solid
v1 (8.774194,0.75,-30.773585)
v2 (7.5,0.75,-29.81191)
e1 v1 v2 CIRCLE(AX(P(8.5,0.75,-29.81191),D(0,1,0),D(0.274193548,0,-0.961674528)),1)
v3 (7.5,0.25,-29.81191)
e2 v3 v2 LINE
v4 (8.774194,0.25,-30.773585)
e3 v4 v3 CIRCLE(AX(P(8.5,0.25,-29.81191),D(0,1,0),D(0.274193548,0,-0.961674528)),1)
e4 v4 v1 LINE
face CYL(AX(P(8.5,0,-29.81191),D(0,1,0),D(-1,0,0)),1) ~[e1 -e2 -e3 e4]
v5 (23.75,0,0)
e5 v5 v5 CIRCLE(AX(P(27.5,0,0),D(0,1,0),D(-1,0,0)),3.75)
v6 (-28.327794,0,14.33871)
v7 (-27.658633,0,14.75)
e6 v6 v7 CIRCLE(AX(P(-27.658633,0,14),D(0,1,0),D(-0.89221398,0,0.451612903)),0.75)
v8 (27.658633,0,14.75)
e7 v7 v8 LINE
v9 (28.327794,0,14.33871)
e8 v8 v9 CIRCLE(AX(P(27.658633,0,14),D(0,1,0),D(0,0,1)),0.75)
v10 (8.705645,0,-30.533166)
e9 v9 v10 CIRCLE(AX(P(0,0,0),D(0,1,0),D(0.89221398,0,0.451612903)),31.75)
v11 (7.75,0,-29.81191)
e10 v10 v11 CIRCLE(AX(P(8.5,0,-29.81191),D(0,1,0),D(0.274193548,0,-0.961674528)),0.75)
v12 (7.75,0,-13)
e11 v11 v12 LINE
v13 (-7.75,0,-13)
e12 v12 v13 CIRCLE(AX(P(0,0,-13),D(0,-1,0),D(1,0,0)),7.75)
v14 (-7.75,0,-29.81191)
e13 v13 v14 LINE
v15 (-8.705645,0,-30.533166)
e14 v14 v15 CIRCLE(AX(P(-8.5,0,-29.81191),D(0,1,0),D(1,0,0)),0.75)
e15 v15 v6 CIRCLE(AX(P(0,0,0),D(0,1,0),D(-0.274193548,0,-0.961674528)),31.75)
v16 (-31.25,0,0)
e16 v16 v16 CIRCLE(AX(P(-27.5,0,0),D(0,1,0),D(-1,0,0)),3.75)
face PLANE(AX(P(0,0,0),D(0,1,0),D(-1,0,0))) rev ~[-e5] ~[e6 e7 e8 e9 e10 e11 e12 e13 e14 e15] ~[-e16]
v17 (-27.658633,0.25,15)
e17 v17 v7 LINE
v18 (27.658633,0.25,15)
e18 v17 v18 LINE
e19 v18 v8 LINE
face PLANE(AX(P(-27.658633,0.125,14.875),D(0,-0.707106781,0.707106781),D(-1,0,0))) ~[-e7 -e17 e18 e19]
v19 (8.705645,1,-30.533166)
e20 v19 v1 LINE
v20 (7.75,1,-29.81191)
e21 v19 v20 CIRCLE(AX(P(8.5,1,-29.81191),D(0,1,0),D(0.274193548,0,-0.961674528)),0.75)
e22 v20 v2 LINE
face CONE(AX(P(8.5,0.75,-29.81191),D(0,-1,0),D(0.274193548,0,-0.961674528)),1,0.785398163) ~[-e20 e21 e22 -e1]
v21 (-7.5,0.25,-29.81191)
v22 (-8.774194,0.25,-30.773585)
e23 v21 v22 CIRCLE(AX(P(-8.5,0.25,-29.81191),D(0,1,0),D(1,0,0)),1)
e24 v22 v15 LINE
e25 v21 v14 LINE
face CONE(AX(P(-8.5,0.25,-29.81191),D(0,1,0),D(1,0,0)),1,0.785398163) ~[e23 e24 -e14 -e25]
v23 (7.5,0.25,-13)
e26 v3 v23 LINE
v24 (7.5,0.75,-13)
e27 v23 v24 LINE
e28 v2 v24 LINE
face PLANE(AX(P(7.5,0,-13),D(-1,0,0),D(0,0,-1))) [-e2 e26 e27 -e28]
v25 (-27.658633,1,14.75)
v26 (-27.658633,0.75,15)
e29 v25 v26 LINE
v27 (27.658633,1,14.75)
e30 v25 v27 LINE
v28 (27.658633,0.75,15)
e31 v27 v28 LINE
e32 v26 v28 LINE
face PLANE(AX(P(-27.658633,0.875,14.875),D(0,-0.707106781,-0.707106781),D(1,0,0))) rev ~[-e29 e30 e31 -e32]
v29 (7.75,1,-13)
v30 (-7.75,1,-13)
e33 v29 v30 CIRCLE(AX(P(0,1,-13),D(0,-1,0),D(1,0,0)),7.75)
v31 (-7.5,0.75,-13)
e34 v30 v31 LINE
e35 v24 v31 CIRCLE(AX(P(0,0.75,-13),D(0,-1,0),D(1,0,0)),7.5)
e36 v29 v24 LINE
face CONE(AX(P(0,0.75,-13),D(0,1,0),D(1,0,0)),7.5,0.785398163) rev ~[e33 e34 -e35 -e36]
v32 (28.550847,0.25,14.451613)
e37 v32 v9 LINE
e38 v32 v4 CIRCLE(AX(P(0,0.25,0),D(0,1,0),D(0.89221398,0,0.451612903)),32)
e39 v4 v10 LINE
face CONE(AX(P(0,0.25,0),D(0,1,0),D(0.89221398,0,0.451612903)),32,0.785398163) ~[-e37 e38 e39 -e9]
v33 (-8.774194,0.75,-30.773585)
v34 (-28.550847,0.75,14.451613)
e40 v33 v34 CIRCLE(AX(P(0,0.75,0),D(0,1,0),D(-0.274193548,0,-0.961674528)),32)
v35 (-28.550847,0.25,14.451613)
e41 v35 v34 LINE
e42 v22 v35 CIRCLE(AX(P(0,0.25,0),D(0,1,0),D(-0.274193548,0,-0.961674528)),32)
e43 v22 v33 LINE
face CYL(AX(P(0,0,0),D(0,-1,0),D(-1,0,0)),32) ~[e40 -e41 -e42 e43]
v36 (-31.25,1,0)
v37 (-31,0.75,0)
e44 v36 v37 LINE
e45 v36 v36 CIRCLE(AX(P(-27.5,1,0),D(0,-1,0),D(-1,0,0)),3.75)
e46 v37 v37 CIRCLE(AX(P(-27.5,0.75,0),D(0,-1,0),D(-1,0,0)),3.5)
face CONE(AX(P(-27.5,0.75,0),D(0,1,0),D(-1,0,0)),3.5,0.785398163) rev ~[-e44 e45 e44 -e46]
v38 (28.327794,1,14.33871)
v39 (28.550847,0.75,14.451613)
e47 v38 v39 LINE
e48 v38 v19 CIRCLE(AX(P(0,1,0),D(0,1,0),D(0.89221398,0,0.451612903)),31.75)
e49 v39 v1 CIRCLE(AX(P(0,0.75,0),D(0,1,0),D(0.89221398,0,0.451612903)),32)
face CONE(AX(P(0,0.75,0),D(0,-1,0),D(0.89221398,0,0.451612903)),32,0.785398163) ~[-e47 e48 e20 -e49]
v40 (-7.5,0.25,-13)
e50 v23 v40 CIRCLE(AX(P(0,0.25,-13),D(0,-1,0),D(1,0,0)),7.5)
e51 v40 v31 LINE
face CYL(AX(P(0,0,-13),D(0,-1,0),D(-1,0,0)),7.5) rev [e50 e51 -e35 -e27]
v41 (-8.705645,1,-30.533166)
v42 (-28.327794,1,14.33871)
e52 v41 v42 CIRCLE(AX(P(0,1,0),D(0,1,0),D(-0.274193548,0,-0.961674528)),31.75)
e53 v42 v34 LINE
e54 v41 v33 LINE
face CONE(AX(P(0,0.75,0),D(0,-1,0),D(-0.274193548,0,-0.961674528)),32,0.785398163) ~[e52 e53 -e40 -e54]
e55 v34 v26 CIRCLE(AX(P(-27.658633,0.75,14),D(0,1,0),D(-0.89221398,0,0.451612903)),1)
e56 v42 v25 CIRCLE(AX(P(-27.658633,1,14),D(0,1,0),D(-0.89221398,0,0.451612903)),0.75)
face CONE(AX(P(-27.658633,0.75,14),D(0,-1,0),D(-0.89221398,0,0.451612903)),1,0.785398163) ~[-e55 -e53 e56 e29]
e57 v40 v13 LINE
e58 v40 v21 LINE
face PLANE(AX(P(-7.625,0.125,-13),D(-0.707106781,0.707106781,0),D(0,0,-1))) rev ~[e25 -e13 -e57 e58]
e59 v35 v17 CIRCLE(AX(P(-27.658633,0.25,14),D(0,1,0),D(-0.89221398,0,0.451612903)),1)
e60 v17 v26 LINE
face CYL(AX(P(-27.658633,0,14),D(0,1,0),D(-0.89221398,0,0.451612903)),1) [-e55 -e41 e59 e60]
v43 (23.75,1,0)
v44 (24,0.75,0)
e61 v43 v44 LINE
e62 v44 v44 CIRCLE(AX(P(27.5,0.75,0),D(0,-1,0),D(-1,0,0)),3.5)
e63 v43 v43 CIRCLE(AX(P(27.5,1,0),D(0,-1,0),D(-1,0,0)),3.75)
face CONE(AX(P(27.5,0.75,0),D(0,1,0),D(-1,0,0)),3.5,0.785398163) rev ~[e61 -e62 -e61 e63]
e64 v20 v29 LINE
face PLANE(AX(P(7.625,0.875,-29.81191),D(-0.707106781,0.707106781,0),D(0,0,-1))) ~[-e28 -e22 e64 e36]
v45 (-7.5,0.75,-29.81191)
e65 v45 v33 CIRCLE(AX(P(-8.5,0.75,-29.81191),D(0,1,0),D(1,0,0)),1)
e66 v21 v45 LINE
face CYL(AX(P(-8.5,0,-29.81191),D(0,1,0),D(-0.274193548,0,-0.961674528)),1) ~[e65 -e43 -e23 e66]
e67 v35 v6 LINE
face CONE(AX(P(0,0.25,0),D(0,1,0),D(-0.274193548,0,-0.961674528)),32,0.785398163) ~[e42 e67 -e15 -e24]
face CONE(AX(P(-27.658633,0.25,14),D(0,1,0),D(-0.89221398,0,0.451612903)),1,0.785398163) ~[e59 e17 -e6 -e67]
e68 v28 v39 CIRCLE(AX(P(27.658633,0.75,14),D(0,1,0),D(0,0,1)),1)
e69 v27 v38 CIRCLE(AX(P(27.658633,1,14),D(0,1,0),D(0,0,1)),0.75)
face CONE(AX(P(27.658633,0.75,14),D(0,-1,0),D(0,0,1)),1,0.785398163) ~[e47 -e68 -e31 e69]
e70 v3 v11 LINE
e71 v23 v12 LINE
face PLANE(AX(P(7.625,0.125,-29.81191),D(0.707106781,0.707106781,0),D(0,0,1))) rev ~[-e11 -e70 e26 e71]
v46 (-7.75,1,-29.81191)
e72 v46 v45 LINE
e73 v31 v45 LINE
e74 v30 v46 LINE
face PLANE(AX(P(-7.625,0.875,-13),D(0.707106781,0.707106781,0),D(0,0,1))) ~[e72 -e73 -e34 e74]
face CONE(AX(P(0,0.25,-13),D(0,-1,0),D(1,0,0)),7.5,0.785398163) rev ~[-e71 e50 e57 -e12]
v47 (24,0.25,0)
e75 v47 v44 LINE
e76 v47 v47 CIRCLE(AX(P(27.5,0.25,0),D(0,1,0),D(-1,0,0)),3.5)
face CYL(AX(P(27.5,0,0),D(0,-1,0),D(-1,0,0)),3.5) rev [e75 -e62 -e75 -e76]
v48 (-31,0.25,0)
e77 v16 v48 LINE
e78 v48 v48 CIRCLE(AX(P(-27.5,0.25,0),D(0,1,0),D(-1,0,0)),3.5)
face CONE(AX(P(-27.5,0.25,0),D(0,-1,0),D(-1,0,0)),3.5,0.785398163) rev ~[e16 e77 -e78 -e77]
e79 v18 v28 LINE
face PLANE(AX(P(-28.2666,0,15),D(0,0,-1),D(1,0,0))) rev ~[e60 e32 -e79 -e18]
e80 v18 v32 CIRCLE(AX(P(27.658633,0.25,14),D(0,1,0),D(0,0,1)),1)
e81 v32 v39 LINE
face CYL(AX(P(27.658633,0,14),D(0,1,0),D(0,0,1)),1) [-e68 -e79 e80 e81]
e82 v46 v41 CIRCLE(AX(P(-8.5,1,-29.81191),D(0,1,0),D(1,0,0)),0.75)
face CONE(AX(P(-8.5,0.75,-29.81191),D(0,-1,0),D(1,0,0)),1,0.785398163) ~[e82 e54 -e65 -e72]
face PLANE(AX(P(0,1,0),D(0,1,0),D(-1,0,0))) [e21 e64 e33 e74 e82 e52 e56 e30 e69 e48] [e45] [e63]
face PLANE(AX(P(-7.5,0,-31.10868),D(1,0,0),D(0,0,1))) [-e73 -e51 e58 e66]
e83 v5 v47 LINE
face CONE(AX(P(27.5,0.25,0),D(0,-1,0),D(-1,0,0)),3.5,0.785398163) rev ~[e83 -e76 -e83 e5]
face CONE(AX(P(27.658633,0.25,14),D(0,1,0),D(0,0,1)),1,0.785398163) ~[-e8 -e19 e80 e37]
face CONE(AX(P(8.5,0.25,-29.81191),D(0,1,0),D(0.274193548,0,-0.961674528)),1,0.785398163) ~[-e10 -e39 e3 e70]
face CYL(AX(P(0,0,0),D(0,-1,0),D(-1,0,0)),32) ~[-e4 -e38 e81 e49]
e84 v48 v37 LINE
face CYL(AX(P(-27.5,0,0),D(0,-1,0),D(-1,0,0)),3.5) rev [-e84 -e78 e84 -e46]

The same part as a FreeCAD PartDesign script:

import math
import FreeCAD as App
import Part
import Sketcher
Q = App.Units.Quantity


def edges_at(feature, points):
    """Names of the edges that pass closest to the given points."""
    edges = feature.Shape.Edges
    near = lambda p: min(range(len(edges)), key=lambda i: edges[i].distToShape(Part.Vertex(*p))[0])
    return sorted({f"Edge{near(p) + 1}" for p in points})

doc = App.newDocument("Part")
params = doc.addObject("Spreadsheet::Sheet", "Params")
for row, (alias, value) in enumerate([
    ("sketch1_diameter", "7 mm"),
    ("sketch1_radius", "32 mm"),
    ("sketch1_radius2", "7.5 mm"),
    ("pad1_length", "1 mm"),
    ("fillet_radius", "1 mm"),
    ("chamfer_size", "0.25 mm"),
], start=1):
    params.set(f"A{row}", alias)
    params.set(f"B{row}", "=" + value)
    params.setAlias(f"B{row}", alias)

body = doc.addObject("PartDesign::Body", "Body")

sketch1 = body.newObject("Sketcher::SketchObject", "Sketch")
sketch1.AttachmentSupport = (doc.getObject("XZ_Plane"), [""])
sketch1.MapMode = "FlatFace"
sketch1.addGeometry([
    Part.LineSegment(App.Vector(-28.2666, 15, 0), App.Vector(28.2666, 15, 0)),
    Part.ArcOfCircle(Part.Circle(App.Vector(0, 0, 0), App.Vector(0, 0, 1), 32), math.radians(-76.445216), math.radians(27.953177)),
    Part.LineSegment(App.Vector(7.5, -31.10868, 0), App.Vector(7.5, -13, 0)),
    Part.ArcOfCircle(Part.Circle(App.Vector(0, -13, 0), App.Vector(0, 0, 1), 7.5), math.radians(0), math.radians(180)),
    Part.LineSegment(App.Vector(-7.5, -13, 0), App.Vector(-7.5, -31.10868, 0)),
    Part.ArcOfCircle(Part.Circle(App.Vector(0, 0, 0), App.Vector(0, 0, 1), 32), math.radians(152.046823), math.radians(256.445216)),
    Part.Circle(App.Vector(-27.5, 0, 0), App.Vector(0, 0, 1), 3.5),
    Part.Circle(App.Vector(27.5, 0, 0), App.Vector(0, 0, 1), 3.5),
], False)
sketch1.addConstraint([
    Sketcher.Constraint("Coincident", 0, 2, 1, 2),
    Sketcher.Constraint("Coincident", 1, 1, 2, 1),
    Sketcher.Constraint("Tangent", 2, 2, 3, 1),
    Sketcher.Constraint("Tangent", 3, 2, 4, 1),
    Sketcher.Constraint("Coincident", 4, 2, 5, 2),
    Sketcher.Constraint("Coincident", 5, 1, 0, 1),
    Sketcher.Constraint("Horizontal", 0),
    Sketcher.Constraint("Vertical", 2),
    Sketcher.Constraint("Vertical", 4),
    Sketcher.Constraint("Coincident", 1, 3, -1, 1),
    Sketcher.Constraint("Coincident", 5, 3, -1, 1),
    Sketcher.Constraint("Equal", 1, 5),
    Sketcher.Constraint("Equal", 6, 7),
    Sketcher.Constraint("Symmetric", 6, 3, 7, 3, -1, 1),
    Sketcher.Constraint("PointOnObject", 3, 3, -2),
    Sketcher.Constraint("PointOnObject", 6, 3, -1),
    Sketcher.Constraint("Diameter", 6, Q("7 mm")),
    Sketcher.Constraint("Radius", 1, Q("32 mm")),
    Sketcher.Constraint("Radius", 3, Q("7.5 mm")),
    Sketcher.Constraint("DistanceY", -1, 1, 0, 2, Q("15 mm")),
    Sketcher.Constraint("DistanceX", 6, 3, 7, 3, Q("55 mm")),
    Sketcher.Constraint("DistanceY", 3, 3, -1, 1, Q("13 mm")),
])
sketch1.setExpression("Constraints[16]", "Params.sketch1_diameter")
sketch1.setExpression("Constraints[17]", "Params.sketch1_radius")
sketch1.setExpression("Constraints[18]", "Params.sketch1_radius2")
pad1 = body.newObject("PartDesign::Pad", "Pad")
pad1.Profile = sketch1
pad1.setExpression("Length", "Params.pad1_length")
pad1.Reversed = True
doc.recompute()

fillet = body.newObject("PartDesign::Fillet", "Fillet")
fillet.Base = (pad1, edges_at(pad1, [
    (-7.5, 0.5, -31.109),
    (7.5, 0.5, -31.109),
    (-28.267, 0.5, 15),
    (28.267, 0.5, 15),
]))
fillet.setExpression("Radius", "Params.fillet_radius")
doc.recompute()

chamfer = body.newObject("PartDesign::Chamfer", "Chamfer")
chamfer.Base = (fillet, edges_at(fillet, [
    (-24, 0, 0),
    (-24, 1, 0),
    (29.319, 1, -12.821),
    (7.898, 1, -30.61),
    (7.5, 1, -21.406),
    (0, 1, -5.5),
    (-7.5, 1, -21.406),
    (-7.898, 1, -30.61),
    (-29.319, 1, -12.821),
    (-29.319, 0, -12.821),
    (-7.898, 0, -30.61),
    (-7.5, 0, -21.406),
    (0, 0, -5.5),
    (7.5, 0, -21.406),
    (7.898, 0, -30.61),
    (29.319, 0, -12.821),
    (31, 0, 0),
    (31, 1, 0),
    (0, 0, 15),
    (0, 1, 15),
]))
chamfer.setExpression("Size", "Params.chamfer_size")

doc.recompute()
